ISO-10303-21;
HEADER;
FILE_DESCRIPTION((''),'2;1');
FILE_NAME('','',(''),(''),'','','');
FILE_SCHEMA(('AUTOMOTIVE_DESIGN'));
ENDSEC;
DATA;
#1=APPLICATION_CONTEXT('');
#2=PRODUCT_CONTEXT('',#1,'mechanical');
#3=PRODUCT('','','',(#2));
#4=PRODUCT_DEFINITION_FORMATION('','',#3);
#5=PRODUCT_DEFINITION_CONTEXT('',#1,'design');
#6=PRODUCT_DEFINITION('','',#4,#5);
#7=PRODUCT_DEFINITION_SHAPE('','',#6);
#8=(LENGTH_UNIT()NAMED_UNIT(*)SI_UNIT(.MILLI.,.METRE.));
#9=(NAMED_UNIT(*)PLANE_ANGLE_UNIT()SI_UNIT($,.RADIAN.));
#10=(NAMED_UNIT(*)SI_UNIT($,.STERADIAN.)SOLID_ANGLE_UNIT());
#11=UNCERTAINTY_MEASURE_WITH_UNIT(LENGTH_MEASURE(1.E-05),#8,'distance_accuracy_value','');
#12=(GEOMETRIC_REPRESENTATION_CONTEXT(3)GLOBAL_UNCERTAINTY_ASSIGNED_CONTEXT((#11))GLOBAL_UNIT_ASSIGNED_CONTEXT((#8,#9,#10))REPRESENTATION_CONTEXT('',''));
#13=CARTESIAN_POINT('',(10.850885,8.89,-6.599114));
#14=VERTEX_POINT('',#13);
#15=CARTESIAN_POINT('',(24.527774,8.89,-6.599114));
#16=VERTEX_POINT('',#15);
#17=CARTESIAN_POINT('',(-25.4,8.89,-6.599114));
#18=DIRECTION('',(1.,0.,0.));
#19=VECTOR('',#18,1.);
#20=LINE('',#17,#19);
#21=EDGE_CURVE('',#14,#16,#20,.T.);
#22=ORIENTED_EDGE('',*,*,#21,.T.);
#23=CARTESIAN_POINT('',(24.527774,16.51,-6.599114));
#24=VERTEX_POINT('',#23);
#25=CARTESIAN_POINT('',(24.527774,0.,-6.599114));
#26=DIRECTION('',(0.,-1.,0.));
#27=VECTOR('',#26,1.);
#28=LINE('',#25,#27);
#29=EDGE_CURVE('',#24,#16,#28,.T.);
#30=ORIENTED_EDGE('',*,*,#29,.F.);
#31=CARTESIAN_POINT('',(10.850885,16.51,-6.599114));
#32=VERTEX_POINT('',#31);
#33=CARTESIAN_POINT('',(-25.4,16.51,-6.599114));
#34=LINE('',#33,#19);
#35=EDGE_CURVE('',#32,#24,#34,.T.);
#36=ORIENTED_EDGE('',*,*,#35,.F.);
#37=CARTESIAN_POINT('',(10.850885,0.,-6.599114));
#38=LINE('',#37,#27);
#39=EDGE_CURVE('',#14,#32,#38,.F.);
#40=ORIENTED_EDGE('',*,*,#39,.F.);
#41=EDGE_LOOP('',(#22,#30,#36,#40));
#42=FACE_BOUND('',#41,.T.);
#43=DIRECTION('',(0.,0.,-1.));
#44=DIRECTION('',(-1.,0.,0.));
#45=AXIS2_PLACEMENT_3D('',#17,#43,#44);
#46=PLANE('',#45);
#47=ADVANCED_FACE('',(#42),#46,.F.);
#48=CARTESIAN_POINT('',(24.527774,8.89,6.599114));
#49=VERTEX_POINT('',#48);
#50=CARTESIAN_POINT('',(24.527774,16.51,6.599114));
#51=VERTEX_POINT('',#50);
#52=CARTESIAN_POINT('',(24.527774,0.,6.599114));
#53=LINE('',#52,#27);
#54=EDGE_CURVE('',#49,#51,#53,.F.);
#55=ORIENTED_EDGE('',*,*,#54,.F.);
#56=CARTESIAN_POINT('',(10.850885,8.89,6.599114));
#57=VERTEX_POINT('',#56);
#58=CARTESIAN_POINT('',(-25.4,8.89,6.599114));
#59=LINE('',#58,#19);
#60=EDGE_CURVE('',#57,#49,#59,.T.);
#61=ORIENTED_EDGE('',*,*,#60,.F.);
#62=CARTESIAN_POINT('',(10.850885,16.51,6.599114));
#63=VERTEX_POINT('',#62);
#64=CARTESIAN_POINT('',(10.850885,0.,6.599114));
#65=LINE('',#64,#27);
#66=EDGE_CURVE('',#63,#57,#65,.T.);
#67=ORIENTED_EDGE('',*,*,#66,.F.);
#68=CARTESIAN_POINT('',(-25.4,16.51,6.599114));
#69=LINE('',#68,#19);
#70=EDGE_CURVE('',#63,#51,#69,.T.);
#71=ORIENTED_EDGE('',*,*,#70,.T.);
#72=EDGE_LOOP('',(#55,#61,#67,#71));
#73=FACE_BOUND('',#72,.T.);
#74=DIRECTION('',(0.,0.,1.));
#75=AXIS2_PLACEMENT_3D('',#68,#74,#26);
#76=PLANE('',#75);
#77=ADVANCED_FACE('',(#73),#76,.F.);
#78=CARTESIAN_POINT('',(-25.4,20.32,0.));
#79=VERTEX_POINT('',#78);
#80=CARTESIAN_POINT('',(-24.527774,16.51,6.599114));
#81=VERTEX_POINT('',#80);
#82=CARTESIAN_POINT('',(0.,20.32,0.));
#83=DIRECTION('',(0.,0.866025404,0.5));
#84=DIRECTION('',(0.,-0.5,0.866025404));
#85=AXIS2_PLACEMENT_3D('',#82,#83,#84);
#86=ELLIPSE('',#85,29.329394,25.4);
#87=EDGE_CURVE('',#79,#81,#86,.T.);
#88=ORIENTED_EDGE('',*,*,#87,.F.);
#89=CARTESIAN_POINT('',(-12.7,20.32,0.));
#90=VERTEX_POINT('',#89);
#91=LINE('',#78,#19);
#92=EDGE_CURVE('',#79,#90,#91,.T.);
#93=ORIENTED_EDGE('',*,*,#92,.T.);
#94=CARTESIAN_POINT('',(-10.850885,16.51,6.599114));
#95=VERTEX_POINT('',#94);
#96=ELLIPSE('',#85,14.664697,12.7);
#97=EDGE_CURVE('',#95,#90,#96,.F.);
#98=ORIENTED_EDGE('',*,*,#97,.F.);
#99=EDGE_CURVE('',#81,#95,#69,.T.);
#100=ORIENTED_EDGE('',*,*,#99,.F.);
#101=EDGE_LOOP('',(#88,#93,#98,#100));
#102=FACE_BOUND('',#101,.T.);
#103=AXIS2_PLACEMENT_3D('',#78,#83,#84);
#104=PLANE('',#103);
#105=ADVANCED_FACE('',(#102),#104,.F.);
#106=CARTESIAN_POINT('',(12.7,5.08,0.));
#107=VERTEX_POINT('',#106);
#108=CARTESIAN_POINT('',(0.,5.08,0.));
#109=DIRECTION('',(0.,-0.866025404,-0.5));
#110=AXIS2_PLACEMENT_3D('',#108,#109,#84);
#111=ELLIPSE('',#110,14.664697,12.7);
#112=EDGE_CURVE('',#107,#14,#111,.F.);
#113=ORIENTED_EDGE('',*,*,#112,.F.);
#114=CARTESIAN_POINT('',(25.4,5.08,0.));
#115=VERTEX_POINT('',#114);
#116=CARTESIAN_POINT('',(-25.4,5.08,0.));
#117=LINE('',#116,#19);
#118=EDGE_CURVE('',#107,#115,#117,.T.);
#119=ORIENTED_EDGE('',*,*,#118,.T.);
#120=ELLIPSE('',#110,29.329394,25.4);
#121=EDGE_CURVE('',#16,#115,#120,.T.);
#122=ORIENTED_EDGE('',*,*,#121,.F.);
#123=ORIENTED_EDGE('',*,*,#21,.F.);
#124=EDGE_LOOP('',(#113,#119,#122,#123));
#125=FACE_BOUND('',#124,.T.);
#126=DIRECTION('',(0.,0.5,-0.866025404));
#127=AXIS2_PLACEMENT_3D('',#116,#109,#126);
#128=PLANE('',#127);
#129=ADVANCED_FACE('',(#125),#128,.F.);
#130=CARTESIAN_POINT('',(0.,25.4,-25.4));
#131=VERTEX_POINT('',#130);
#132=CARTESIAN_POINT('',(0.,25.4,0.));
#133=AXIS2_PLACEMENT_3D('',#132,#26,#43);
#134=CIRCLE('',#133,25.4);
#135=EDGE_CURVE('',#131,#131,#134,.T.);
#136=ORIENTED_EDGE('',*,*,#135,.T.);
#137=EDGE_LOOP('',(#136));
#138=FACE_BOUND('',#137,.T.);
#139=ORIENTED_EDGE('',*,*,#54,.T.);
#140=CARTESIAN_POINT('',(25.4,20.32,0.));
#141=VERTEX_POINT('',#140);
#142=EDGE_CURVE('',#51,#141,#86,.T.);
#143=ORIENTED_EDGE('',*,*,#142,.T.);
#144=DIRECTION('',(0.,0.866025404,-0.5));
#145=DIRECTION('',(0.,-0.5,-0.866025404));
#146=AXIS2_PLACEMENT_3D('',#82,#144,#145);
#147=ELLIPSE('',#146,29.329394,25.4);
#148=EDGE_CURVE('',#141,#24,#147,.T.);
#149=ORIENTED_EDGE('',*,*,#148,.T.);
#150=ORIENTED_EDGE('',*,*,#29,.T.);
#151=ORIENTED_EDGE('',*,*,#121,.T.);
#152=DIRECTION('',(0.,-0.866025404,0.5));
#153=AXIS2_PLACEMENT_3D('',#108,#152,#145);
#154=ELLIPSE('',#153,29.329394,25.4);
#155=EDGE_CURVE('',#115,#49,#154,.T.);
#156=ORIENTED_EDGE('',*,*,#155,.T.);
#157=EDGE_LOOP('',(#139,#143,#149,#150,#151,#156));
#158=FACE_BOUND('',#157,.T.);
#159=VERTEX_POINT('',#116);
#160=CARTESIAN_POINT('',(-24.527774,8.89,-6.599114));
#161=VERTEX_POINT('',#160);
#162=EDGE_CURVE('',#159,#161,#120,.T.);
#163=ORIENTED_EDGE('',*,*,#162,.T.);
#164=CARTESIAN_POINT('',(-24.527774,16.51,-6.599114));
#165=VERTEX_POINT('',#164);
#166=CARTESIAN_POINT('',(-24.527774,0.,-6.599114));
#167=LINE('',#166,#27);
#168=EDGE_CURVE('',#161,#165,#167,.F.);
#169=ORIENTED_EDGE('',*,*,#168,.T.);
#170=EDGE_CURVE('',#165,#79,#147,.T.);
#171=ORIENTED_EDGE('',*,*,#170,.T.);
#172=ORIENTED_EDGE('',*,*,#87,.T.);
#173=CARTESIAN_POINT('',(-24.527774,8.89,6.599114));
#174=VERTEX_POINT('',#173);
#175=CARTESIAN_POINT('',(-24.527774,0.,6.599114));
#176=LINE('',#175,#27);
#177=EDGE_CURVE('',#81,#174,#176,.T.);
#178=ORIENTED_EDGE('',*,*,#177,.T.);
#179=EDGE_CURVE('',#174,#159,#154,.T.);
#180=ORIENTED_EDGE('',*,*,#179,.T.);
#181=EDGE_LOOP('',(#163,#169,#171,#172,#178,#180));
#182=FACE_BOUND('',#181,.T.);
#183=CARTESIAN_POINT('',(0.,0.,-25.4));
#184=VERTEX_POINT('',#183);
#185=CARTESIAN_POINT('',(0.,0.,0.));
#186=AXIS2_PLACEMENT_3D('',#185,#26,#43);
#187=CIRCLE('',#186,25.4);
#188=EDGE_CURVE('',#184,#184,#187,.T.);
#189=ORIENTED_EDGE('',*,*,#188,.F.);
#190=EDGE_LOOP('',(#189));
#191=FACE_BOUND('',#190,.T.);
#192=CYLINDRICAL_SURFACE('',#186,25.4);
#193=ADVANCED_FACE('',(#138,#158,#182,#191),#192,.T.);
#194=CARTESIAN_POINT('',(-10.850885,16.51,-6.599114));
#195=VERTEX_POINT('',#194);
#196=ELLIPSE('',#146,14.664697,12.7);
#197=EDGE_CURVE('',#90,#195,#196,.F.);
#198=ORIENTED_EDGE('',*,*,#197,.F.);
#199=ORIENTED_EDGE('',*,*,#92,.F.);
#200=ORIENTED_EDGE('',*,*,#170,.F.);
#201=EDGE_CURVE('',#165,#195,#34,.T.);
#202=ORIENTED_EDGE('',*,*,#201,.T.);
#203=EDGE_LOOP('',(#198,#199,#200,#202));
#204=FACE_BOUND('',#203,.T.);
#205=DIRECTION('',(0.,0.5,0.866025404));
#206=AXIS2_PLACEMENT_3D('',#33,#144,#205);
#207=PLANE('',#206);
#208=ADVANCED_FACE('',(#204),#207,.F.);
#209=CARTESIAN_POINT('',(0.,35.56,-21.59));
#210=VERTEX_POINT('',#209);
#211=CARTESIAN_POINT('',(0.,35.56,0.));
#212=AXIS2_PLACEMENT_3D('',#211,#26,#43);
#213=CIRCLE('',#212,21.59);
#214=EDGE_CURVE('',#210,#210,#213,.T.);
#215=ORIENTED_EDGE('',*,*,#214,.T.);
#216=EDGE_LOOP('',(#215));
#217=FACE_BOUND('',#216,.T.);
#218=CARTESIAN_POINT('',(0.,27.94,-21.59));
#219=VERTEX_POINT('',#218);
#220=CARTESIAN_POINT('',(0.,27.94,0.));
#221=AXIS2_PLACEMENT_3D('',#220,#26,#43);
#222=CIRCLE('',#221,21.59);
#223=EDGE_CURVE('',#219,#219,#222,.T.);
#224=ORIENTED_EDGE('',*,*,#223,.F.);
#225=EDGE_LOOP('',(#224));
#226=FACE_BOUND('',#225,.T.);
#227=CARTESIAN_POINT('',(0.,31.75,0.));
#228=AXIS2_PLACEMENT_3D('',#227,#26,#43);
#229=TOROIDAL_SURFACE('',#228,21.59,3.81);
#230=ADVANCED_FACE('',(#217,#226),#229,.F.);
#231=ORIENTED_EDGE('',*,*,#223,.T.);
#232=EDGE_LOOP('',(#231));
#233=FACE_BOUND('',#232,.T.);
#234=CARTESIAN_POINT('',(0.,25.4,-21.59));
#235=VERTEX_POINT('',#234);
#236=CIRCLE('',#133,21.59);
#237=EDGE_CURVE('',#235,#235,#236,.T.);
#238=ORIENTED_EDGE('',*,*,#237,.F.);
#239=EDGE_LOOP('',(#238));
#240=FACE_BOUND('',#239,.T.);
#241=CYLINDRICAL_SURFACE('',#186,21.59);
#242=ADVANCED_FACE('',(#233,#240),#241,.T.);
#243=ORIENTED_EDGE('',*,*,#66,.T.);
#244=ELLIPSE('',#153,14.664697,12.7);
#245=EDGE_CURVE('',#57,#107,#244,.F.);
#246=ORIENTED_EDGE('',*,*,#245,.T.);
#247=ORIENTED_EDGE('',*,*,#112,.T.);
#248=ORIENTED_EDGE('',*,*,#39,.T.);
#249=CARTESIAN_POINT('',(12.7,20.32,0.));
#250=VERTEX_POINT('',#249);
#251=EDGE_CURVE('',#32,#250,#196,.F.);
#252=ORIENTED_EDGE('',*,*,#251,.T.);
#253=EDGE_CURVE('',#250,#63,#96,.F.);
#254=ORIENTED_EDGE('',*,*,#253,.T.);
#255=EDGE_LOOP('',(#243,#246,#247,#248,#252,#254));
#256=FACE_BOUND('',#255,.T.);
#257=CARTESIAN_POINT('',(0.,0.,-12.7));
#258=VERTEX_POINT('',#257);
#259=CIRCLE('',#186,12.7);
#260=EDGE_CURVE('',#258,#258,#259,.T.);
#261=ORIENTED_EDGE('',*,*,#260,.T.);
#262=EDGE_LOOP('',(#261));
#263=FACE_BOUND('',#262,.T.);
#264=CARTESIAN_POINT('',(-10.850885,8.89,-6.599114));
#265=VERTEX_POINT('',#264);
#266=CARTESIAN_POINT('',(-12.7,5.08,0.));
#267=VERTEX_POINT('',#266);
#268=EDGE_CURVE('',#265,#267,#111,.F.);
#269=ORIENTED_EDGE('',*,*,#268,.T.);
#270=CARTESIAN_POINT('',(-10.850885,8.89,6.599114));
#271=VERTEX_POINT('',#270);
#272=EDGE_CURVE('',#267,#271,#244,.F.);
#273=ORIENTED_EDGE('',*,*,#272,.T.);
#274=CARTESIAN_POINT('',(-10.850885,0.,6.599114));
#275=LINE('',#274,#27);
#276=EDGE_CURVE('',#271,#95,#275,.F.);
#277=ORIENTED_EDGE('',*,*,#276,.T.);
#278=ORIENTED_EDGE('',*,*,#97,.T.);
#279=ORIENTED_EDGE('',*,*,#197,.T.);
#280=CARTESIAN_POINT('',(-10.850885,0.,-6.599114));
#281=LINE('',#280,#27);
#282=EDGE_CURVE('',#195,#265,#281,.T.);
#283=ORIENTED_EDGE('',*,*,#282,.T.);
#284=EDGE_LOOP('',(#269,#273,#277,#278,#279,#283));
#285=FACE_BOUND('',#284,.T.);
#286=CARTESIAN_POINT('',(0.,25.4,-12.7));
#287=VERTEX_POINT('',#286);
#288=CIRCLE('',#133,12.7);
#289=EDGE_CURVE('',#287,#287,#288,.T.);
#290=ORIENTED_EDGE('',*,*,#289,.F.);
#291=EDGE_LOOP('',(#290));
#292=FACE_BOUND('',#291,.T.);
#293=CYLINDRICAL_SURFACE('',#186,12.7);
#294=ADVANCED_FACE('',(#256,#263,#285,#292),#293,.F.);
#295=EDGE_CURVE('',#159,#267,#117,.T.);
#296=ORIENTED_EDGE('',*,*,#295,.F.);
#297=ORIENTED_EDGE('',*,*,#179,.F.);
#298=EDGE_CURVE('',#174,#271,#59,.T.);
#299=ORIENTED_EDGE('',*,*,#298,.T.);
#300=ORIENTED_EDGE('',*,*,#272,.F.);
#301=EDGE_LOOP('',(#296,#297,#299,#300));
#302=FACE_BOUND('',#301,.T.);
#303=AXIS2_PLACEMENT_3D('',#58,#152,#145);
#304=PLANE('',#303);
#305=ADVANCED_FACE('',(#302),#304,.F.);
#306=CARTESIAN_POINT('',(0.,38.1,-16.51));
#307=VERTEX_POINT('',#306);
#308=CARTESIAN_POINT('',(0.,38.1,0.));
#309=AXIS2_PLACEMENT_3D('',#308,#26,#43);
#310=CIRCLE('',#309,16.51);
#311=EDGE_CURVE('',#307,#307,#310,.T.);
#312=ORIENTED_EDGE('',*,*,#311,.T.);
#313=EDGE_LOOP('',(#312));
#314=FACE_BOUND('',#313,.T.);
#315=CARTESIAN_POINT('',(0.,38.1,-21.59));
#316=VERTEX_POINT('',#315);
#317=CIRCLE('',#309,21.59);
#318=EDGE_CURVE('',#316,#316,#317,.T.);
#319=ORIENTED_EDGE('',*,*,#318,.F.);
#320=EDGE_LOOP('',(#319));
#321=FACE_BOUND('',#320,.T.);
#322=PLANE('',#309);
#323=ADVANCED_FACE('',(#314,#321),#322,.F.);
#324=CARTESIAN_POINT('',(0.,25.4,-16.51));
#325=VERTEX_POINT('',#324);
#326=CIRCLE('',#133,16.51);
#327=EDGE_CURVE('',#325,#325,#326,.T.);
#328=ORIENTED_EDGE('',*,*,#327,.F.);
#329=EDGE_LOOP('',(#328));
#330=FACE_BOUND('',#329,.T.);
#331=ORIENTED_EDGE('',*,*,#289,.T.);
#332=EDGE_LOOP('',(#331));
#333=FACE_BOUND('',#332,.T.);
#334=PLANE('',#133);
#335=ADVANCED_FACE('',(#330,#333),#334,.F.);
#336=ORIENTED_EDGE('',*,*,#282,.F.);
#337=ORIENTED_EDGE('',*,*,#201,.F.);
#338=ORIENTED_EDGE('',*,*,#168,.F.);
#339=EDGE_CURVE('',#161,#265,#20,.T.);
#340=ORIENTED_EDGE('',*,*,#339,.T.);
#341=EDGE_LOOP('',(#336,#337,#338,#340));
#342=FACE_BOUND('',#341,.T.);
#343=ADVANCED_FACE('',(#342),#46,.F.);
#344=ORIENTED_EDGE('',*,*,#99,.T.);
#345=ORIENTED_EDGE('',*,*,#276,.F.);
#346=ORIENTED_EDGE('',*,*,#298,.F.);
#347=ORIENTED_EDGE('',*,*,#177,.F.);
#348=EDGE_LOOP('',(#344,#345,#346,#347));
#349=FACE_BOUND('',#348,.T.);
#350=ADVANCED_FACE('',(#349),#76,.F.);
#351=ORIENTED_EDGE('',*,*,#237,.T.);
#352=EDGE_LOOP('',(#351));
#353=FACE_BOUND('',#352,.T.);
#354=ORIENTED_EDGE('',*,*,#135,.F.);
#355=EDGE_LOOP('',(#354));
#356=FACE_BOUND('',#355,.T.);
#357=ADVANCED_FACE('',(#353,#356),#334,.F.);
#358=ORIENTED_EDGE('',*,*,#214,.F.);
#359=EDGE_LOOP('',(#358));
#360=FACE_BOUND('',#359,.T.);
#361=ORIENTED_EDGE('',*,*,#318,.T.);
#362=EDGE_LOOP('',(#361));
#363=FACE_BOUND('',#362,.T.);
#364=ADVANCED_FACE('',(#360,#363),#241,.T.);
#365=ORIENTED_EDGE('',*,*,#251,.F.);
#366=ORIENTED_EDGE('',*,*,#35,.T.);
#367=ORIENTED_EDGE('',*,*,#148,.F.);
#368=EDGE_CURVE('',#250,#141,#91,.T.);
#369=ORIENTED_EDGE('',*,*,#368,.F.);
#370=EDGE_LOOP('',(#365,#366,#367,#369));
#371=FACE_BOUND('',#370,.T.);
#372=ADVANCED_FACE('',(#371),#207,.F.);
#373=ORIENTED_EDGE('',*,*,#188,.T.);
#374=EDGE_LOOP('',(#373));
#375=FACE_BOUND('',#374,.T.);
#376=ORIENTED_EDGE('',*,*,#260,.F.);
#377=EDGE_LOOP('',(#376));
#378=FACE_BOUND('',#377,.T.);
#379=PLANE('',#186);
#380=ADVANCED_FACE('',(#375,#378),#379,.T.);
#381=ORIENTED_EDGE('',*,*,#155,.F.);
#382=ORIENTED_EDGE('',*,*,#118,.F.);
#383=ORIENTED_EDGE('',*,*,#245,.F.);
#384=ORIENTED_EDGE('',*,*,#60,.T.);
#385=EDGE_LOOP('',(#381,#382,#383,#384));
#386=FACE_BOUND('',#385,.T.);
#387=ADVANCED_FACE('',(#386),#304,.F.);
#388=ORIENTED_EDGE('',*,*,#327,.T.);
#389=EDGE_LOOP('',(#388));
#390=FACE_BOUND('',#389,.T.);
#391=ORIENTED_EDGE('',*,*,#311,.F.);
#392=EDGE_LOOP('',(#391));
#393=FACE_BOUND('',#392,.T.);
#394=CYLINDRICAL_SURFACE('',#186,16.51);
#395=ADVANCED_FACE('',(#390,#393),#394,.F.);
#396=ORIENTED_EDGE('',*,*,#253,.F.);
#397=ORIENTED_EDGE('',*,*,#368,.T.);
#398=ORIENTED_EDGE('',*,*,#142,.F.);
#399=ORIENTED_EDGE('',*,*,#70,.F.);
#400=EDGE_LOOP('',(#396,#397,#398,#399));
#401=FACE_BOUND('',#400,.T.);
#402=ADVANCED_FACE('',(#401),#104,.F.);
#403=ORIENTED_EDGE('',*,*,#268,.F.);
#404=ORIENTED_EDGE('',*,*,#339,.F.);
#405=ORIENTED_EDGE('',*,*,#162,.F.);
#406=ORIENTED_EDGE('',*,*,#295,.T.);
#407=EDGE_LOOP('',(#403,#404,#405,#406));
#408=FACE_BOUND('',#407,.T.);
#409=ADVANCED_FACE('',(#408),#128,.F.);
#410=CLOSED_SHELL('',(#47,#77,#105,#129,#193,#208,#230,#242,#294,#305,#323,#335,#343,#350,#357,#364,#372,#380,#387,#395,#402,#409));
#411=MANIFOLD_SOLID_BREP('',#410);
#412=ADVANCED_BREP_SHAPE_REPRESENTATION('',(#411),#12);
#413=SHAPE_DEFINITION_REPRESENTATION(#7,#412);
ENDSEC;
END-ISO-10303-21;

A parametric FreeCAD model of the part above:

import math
import FreeCAD as App
import Part
import Sketcher

V = App.Vector
Q = App.Units.Quantity

doc = App.newDocument("Part")
body = doc.addObject("PartDesign::Body", "Body")

# Sketch on XY plane
sketch1 = doc.addObject("Sketcher::SketchObject", "Sketch")
body.addObject(sketch1)
sketch1.AttachmentSupport = (doc.XY_Plane, [""])
sketch1.MapMode = "FlatFace"
sketch1.addGeometry(Part.LineSegment(V(12.7, 25.4, 0), V(12.7, 0, 0)), False)
sketch1.addGeometry(Part.LineSegment(V(12.7, 0, 0), V(25.4, 0, 0)), False)
sketch1.addGeometry(Part.LineSegment(V(25.4, 0, 0), V(25.4, 25.4, 0)), False)
sketch1.addGeometry(Part.LineSegment(V(25.4, 25.4, 0), V(21.6, 25.4, 0)), False)
sketch1.addGeometry(Part.LineSegment(V(21.6, 25.4, 0), V(21.6, 27.9, 0)), False)
sketch1.addGeometry(Part.ArcOfCircle(Part.Circle(V(21.6, 31.8, 0), V(0, 0, 1), 3.8), math.radians(90), math.radians(270)), False)
sketch1.addGeometry(Part.LineSegment(V(21.6, 35.6, 0), V(21.6, 38.1, 0)), False)
sketch1.addGeometry(Part.LineSegment(V(21.6, 38.1, 0), V(16.5, 38.1, 0)), False)
sketch1.addGeometry(Part.LineSegment(V(16.5, 38.1, 0), V(16.5, 25.4, 0)), False)
sketch1.addGeometry(Part.LineSegment(V(16.5, 25.4, 0), V(12.7, 25.4, 0)), False)
sketch1.addConstraint(Sketcher.Constraint("Coincident", 0, 2, 1, 1))
sketch1.addConstraint(Sketcher.Constraint("Coincident", 1, 2, 2, 1))
sketch1.addConstraint(Sketcher.Constraint("Coincident", 2, 2, 3, 1))
sketch1.addConstraint(Sketcher.Constraint("Coincident", 3, 2, 4, 1))
sketch1.addConstraint(Sketcher.Constraint("Coincident", 4, 2, 5, 2))
sketch1.addConstraint(Sketcher.Constraint("Coincident", 5, 1, 6, 1))
sketch1.addConstraint(Sketcher.Constraint("Coincident", 6, 2, 7, 1))
sketch1.addConstraint(Sketcher.Constraint("Coincident", 7, 2, 8, 1))
sketch1.addConstraint(Sketcher.Constraint("Coincident", 8, 2, 9, 1))
sketch1.addConstraint(Sketcher.Constraint("Coincident", 9, 2, 0, 1))
sketch1.addConstraint(Sketcher.Constraint("Vertical", 0))
sketch1.addConstraint(Sketcher.Constraint("Horizontal", 1))
sketch1.addConstraint(Sketcher.Constraint("Vertical", 2))
sketch1.addConstraint(Sketcher.Constraint("Horizontal", 3))
sketch1.addConstraint(Sketcher.Constraint("Vertical", 4))
sketch1.addConstraint(Sketcher.Constraint("Vertical", 6))
sketch1.addConstraint(Sketcher.Constraint("Horizontal", 7))
sketch1.addConstraint(Sketcher.Constraint("Vertical", 8))
sketch1.addConstraint(Sketcher.Constraint("Horizontal", 9))
sketch1.addConstraint(Sketcher.Constraint("PointOnObject", 0, 2, -1))
sketch1.addConstraint(Sketcher.Constraint("Horizontal", 3, 2, 8, 2))
sketch1.addConstraint(Sketcher.Constraint("Vertical", 5, 3, 3, 2))
sketch1.addConstraint(Sketcher.Constraint("Vertical", 4, 2, 5, 1))
sketch1.addConstraint(Sketcher.Constraint("Equal", 3, 9))
sketch1.addConstraint(Sketcher.Constraint("Equal", 4, 6))
sketch1.addConstraint(Sketcher.Constraint("Equal", 1, 8))
sketch1.addConstraint(Sketcher.Constraint("DistanceY", 0, 2, 0, 1, Q("1 in")))
sketch1.addConstraint(Sketcher.Constraint("Radius", 5, Q("0.15 in")))
sketch1.addConstraint(Sketcher.Constraint("DistanceX", 1, 1, 1, 2, Q("0.5 in")))
sketch1.addConstraint(Sketcher.Constraint("DistanceX", 7, 2, 7, 1, Q("0.2 in")))
sketch1.addConstraint(Sketcher.Constraint("DistanceX", -1, 1, 1, 2, Q("1 in")))
revolution = doc.addObject("PartDesign::Revolution", "Revolution")
body.addObject(revolution)
revolution.Profile = sketch1
revolution.ReferenceAxis = (sketch1, ["V_Axis"])
revolution.Angle = 360

# Sketch on YZ plane
sketch2 = doc.addObject("Sketcher::SketchObject", "Sketch001")
body.addObject(sketch2)
sketch2.AttachmentSupport = (doc.YZ_Plane, [""])
sketch2.MapMode = "FlatFace"
sketch2.addGeometry(Part.LineSegment(V(20, 0, 0), V(17, 7, 0)), False)
sketch2.addGeometry(Part.LineSegment(V(17, 7, 0), V(9, 7, 0)), False)
sketch2.addGeometry(Part.LineSegment(V(9, 7, 0), V(5, 0, 0)), False)
sketch2.addGeometry(Part.LineSegment(V(5, 0, 0), V(9, -7, 0)), False)
sketch2.addGeometry(Part.LineSegment(V(9, -7, 0), V(17, -7, 0)), False)
sketch2.addGeometry(Part.LineSegment(V(17, -7, 0), V(20, 0, 0)), False)
sketch2.addConstraint(Sketcher.Constraint("Coincident", 0, 2, 1, 1))
sketch2.addConstraint(Sketcher.Constraint("Coincident", 1, 2, 2, 1))
sketch2.addConstraint(Sketcher.Constraint("Coincident", 2, 2, 3, 1))
sketch2.addConstraint(Sketcher.Constraint("Coincident", 3, 2, 4, 1))
sketch2.addConstraint(Sketcher.Constraint("Coincident", 4, 2, 5, 1))
sketch2.addConstraint(Sketcher.Constraint("Coincident", 5, 2, 0, 1))
sketch2.addConstraint(Sketcher.Constraint("Horizontal", 1))
sketch2.addConstraint(Sketcher.Constraint("Horizontal", 4))
sketch2.addConstraint(Sketcher.Constraint("Symmetric", 1, 2, 3, 2, -1))
sketch2.addConstraint(Sketcher.Constraint("PointOnObject", 2, 2, -1))
sketch2.addConstraint(Sketcher.Constraint("PointOnObject", 5, 2, -1))
sketch2.addConstraint(Sketcher.Constraint("Parallel", 0, 3))
sketch2.addConstraint(Sketcher.Constraint("Parallel", 2, 5))
sketch2.addConstraint(Sketcher.Constraint("DistanceX", 1, 2, 1, 1, Q("0.3 in")))
sketch2.addConstraint(Sketcher.Constraint("Angle", 0, Q("120 deg")))
sketch2.addConstraint(Sketcher.Constraint("Distance", 0, Q("0.3 in")))
sketch2.addConstraint(Sketcher.Constraint("DistanceX", -1, 1, 2, 2, Q("0.2 in")))
pocket1 = doc.addObject("PartDesign::Pocket", "Pocket")
body.addObject(pocket1)
pocket1.Profile = sketch2
pocket1.Type = "ThroughAll"
pocket1.Midplane = True

doc.recompute()
